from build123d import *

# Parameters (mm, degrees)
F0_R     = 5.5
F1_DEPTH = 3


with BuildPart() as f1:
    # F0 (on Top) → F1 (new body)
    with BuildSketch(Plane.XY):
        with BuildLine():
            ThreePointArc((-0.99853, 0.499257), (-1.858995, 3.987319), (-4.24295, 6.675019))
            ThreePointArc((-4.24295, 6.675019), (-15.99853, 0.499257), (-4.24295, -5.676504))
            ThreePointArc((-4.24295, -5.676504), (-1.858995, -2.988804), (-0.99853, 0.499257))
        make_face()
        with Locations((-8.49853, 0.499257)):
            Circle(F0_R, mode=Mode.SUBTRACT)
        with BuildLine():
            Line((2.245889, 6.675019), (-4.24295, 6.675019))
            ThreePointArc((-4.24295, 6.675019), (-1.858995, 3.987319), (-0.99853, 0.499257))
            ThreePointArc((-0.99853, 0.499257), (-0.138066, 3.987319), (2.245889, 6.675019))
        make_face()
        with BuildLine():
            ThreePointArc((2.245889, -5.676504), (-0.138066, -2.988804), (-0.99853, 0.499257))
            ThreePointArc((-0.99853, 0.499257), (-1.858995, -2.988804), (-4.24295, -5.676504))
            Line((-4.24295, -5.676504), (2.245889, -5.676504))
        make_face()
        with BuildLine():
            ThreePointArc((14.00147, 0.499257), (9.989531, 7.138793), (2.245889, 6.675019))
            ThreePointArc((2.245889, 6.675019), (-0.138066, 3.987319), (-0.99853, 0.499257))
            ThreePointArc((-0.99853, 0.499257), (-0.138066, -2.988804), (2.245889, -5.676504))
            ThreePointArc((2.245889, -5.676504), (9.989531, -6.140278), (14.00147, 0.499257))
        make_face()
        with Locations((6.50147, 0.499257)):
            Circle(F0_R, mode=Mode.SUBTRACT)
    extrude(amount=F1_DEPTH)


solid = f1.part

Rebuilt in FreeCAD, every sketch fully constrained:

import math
import FreeCAD as App
import Part
import Sketcher

V = App.Vector

doc = App.newDocument("Part")
params = doc.addObject("Spreadsheet::Sheet", "Params")
for row, (alias, value) in enumerate([
    ("sketch1_diameter", "11 mm"),
    ("sketch1_radius", "7.5 mm"),
    ("pad1_length", "3 mm"),
], start=1):
    params.set(f"A{row}", alias)
    params.set(f"B{row}", "=" + value)
    params.setAlias(f"B{row}", alias)

body = doc.addObject("PartDesign::Body", "Body")

sketch1 = body.newObject("Sketcher::SketchObject", "Sketch")
sketch1.AttachmentSupport = (doc.getObject("XY_Plane"), [""])
sketch1.MapMode = "FlatFace"
sketch1.addGeometry(Part.LineSegment(V(2, 7, 0), V(-4, 7, 0)), False)
sketch1.addGeometry(Part.ArcOfCircle(Part.Circle(V(-8, 0, 0), V(0, 0, 1), 7), math.radians(55), math.radians(305)), False)
sketch1.addGeometry(Part.LineSegment(V(-4, -6, 0), V(2, -6, 0)), False)
sketch1.addGeometry(Part.ArcOfCircle(Part.Circle(V(7, 0, 0), V(0, 0, 1), 7), math.radians(-125), math.radians(0)), False)
sketch1.addGeometry(Part.ArcOfCircle(Part.Circle(V(7, 0, 0), V(0, 0, 1), 7), math.radians(0), math.radians(125)), False)
sketch1.addGeometry(Part.Circle(V(-8, 0, 0), V(0, 0, 1), 6), False)
sketch1.addGeometry(Part.Circle(V(7, 0, 0), V(0, 0, 1), 6), False)
sketch1.addConstraint(Sketcher.Constraint("Coincident", 0, 2, 1, 1))
sketch1.addConstraint(Sketcher.Constraint("Coincident", 1, 2, 2, 1))
sketch1.addConstraint(Sketcher.Constraint("Coincident", 2, 2, 3, 1))
sketch1.addConstraint(Sketcher.Constraint("Tangent", 3, 2, 4, 1))
sketch1.addConstraint(Sketcher.Constraint("Coincident", 4, 2, 0, 1))
sketch1.addConstraint(Sketcher.Constraint("Horizontal", 0))
sketch1.addConstraint(Sketcher.Constraint("Horizontal", 2))
sketch1.addConstraint(Sketcher.Constraint("Coincident", 5, 3, 1, 3))
sketch1.addConstraint(Sketcher.Constraint("Coincident", 6, 3, 3, 3))
sketch1.addConstraint(Sketcher.Constraint("Equal", 1, 3))
sketch1.addConstraint(Sketcher.Constraint("Equal", 3, 4))
sketch1.addConstraint(Sketcher.Constraint("Equal", 5, 6))
sketch1.addConstraint(Sketcher.Constraint("Horizontal", 1, 3, 3, 3))
sketch1.addConstraint(Sketcher.Constraint("Horizontal", 6, 3, 3, 2))
sketch1.addConstraint(Sketcher.Constraint("Vertical", 0, 2, 1, 2))
sketch1.addConstraint(Sketcher.Constraint("Diameter", 5, 11.0))
sketch1.addConstraint(Sketcher.Constraint("Radius", 1, 7.5))
sketch1.addConstraint(Sketcher.Constraint("DistanceX", 1, 3, 3, 3, 15.0))
sketch1.addConstraint(Sketcher.Constraint("DistanceX", 0, 2, 0, 1, 6.488839))
sketch1.addConstraint(Sketcher.Constraint("DistanceX", 1, 3, -1, 1, 8.49853))
sketch1.addConstraint(Sketcher.Constraint("DistanceY", -1, 1, 0, 2, 6.675019))
sketch1.setExpression("Constraints[15]", "Params.sketch1_diameter")
sketch1.setExpression("Constraints[16]", "Params.sketch1_radius")
pad1 = body.newObject("PartDesign::Pad", "Pad")
pad1.Profile = sketch1
pad1.setExpression("Length", "Params.pad1_length")

doc.recompute()
